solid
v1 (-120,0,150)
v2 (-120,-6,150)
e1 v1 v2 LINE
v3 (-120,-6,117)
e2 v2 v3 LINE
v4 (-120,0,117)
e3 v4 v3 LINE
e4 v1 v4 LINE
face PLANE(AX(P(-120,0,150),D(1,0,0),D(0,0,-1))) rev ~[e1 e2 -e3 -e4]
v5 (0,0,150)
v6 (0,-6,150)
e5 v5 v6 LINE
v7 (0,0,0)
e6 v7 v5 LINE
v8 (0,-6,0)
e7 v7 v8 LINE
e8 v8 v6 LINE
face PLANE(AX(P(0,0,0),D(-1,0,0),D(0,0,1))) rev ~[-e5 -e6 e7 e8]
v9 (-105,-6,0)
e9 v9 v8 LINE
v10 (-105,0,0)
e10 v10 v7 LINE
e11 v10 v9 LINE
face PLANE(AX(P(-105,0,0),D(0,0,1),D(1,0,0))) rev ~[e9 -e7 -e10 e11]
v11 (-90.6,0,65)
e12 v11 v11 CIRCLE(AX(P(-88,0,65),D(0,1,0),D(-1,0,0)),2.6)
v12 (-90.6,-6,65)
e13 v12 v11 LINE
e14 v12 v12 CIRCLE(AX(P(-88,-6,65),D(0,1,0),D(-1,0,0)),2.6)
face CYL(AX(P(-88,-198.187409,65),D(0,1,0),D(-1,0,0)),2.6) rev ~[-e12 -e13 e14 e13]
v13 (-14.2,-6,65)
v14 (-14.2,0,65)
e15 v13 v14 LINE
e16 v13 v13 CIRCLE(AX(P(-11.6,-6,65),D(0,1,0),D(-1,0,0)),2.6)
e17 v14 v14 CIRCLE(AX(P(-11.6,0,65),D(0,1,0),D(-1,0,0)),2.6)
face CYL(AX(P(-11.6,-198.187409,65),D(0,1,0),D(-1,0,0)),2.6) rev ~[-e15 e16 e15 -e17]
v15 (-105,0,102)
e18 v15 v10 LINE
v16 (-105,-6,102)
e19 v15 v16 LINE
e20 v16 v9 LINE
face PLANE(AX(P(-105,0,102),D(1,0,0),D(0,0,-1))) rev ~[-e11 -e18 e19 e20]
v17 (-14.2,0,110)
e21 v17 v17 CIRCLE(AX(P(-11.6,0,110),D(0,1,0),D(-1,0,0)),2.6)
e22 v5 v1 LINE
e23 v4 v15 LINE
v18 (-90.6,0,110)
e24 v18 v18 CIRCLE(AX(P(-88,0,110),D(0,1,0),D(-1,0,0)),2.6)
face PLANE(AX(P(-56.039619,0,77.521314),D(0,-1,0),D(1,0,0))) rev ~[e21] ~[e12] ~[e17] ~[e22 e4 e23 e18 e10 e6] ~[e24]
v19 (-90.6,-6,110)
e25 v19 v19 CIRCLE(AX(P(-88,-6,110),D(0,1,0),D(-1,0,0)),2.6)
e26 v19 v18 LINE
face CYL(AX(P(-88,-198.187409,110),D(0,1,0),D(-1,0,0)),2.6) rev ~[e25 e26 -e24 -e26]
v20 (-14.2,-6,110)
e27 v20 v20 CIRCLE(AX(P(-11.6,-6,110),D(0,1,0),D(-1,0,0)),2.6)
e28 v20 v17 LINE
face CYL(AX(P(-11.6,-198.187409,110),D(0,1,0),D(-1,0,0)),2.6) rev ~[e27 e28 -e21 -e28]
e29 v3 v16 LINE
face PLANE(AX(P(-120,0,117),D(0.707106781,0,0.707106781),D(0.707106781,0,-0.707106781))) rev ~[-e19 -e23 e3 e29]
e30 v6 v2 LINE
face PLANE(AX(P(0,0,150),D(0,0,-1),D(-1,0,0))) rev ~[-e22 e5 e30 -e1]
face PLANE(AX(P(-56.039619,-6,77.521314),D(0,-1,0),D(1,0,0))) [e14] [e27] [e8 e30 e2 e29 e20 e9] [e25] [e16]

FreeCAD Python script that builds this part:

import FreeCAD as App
import Part
import Sketcher
from FreeCAD import Vector


def add_polygon(sketch, points):
    """Adds a closed chain of lines whose ends are joined by coincident constraints."""
    first, n = sketch.GeometryCount, len(points)
    for a, b in zip(points, points[1:] + points[:1]):
        sketch.addGeometry(Part.LineSegment(App.Vector(*a, 0), App.Vector(*b, 0)), False)
    for i in range(n):
        sketch.addConstraint(Sketcher.Constraint("Coincident", first + i, 2, first + (i + 1) % n, 1))

doc = App.newDocument("Part")
body = doc.addObject("PartDesign::Body", "Body")

sketch1 = body.newObject("Sketcher::SketchObject", "Sketch")
sketch1.AttachmentSupport = (doc.getObject("XZ_Plane"), [""])
sketch1.MapMode = "FlatFace"
add_polygon(sketch1, [(-105, 0), (0, 0), (0, 150), (-120, 150), (-120, 117), (-105, 102)])
sketch1.addConstraint([
    Sketcher.Constraint("Horizontal", 0),
    Sketcher.Constraint("Vertical", 1),
    Sketcher.Constraint("Horizontal", 2),
    Sketcher.Constraint("Vertical", 3),
    Sketcher.Constraint("Vertical", 5),
    Sketcher.Constraint("Coincident", 0, 2, -1, 1),
    Sketcher.Constraint("DistanceX", 0, 1, 0, 2, 105.0),
    Sketcher.Constraint("DistanceX", 2, 2, 2, 1, 120.0),
    Sketcher.Constraint("DistanceY", 1, 1, 1, 2, 150.0),
    Sketcher.Constraint("DistanceY", 3, 2, 3, 1, 33.0),
    Sketcher.Constraint("DistanceY", 5, 2, 5, 1, 102.0),
])
pad1 = body.newObject("PartDesign::Pad", "Pad")
pad1.Profile = sketch1
pad1.Length = 6

sketch2 = body.newObject("Sketcher::SketchObject", "Sketch001")
sketch2.AttachmentSupport = (doc.getObject("XZ_Plane"), [""])
sketch2.MapMode = "FlatFace"
sketch2.AttachmentOffset = App.Placement(Vector(0, 0, 6), App.Rotation())
sketch2.addGeometry([
    Part.Circle(Vector(-11.6, 110, 0), Vector(0, 0, 1), 2.6),
    Part.Circle(Vector(-88, 110, 0), Vector(0, 0, 1), 2.6),
    Part.Circle(Vector(-88, 65, 0), Vector(0, 0, 1), 2.6),
    Part.Circle(Vector(-11.6, 65, 0), Vector(0, 0, 1), 2.6),
], False)
sketch2.addConstraint([
    Sketcher.Constraint("Equal", 0, 1),
    Sketcher.Constraint("Equal", 1, 2),
    Sketcher.Constraint("Equal", 2, 3),
    Sketcher.Constraint("Horizontal", 0, 3, 1, 3),
    Sketcher.Constraint("Horizontal", 2, 3, 3, 3),
    Sketcher.Constraint("Vertical", 1, 3, 2, 3),
    Sketcher.Constraint("Vertical", 0, 3, 3, 3),
    Sketcher.Constraint("Diameter", 0, 5.2),
    Sketcher.Constraint("DistanceY", -1, 1, 0, 3, 110.0),
    Sketcher.Constraint("DistanceX", 1, 3, -1, 1, 88.0),
    Sketcher.Constraint("DistanceY", -1, 1, 2, 3, 65.0),
    Sketcher.Constraint("DistanceX", 0, 3, -1, 1, 11.6),
])
doc.recompute()
hole = body.newObject("PartDesign::Hole", "Hole")
hole.Profile = sketch2
hole.ThreadType = "None"
hole.Diameter = 5.2
hole.DepthType = "ThroughAll"

doc.recompute()
